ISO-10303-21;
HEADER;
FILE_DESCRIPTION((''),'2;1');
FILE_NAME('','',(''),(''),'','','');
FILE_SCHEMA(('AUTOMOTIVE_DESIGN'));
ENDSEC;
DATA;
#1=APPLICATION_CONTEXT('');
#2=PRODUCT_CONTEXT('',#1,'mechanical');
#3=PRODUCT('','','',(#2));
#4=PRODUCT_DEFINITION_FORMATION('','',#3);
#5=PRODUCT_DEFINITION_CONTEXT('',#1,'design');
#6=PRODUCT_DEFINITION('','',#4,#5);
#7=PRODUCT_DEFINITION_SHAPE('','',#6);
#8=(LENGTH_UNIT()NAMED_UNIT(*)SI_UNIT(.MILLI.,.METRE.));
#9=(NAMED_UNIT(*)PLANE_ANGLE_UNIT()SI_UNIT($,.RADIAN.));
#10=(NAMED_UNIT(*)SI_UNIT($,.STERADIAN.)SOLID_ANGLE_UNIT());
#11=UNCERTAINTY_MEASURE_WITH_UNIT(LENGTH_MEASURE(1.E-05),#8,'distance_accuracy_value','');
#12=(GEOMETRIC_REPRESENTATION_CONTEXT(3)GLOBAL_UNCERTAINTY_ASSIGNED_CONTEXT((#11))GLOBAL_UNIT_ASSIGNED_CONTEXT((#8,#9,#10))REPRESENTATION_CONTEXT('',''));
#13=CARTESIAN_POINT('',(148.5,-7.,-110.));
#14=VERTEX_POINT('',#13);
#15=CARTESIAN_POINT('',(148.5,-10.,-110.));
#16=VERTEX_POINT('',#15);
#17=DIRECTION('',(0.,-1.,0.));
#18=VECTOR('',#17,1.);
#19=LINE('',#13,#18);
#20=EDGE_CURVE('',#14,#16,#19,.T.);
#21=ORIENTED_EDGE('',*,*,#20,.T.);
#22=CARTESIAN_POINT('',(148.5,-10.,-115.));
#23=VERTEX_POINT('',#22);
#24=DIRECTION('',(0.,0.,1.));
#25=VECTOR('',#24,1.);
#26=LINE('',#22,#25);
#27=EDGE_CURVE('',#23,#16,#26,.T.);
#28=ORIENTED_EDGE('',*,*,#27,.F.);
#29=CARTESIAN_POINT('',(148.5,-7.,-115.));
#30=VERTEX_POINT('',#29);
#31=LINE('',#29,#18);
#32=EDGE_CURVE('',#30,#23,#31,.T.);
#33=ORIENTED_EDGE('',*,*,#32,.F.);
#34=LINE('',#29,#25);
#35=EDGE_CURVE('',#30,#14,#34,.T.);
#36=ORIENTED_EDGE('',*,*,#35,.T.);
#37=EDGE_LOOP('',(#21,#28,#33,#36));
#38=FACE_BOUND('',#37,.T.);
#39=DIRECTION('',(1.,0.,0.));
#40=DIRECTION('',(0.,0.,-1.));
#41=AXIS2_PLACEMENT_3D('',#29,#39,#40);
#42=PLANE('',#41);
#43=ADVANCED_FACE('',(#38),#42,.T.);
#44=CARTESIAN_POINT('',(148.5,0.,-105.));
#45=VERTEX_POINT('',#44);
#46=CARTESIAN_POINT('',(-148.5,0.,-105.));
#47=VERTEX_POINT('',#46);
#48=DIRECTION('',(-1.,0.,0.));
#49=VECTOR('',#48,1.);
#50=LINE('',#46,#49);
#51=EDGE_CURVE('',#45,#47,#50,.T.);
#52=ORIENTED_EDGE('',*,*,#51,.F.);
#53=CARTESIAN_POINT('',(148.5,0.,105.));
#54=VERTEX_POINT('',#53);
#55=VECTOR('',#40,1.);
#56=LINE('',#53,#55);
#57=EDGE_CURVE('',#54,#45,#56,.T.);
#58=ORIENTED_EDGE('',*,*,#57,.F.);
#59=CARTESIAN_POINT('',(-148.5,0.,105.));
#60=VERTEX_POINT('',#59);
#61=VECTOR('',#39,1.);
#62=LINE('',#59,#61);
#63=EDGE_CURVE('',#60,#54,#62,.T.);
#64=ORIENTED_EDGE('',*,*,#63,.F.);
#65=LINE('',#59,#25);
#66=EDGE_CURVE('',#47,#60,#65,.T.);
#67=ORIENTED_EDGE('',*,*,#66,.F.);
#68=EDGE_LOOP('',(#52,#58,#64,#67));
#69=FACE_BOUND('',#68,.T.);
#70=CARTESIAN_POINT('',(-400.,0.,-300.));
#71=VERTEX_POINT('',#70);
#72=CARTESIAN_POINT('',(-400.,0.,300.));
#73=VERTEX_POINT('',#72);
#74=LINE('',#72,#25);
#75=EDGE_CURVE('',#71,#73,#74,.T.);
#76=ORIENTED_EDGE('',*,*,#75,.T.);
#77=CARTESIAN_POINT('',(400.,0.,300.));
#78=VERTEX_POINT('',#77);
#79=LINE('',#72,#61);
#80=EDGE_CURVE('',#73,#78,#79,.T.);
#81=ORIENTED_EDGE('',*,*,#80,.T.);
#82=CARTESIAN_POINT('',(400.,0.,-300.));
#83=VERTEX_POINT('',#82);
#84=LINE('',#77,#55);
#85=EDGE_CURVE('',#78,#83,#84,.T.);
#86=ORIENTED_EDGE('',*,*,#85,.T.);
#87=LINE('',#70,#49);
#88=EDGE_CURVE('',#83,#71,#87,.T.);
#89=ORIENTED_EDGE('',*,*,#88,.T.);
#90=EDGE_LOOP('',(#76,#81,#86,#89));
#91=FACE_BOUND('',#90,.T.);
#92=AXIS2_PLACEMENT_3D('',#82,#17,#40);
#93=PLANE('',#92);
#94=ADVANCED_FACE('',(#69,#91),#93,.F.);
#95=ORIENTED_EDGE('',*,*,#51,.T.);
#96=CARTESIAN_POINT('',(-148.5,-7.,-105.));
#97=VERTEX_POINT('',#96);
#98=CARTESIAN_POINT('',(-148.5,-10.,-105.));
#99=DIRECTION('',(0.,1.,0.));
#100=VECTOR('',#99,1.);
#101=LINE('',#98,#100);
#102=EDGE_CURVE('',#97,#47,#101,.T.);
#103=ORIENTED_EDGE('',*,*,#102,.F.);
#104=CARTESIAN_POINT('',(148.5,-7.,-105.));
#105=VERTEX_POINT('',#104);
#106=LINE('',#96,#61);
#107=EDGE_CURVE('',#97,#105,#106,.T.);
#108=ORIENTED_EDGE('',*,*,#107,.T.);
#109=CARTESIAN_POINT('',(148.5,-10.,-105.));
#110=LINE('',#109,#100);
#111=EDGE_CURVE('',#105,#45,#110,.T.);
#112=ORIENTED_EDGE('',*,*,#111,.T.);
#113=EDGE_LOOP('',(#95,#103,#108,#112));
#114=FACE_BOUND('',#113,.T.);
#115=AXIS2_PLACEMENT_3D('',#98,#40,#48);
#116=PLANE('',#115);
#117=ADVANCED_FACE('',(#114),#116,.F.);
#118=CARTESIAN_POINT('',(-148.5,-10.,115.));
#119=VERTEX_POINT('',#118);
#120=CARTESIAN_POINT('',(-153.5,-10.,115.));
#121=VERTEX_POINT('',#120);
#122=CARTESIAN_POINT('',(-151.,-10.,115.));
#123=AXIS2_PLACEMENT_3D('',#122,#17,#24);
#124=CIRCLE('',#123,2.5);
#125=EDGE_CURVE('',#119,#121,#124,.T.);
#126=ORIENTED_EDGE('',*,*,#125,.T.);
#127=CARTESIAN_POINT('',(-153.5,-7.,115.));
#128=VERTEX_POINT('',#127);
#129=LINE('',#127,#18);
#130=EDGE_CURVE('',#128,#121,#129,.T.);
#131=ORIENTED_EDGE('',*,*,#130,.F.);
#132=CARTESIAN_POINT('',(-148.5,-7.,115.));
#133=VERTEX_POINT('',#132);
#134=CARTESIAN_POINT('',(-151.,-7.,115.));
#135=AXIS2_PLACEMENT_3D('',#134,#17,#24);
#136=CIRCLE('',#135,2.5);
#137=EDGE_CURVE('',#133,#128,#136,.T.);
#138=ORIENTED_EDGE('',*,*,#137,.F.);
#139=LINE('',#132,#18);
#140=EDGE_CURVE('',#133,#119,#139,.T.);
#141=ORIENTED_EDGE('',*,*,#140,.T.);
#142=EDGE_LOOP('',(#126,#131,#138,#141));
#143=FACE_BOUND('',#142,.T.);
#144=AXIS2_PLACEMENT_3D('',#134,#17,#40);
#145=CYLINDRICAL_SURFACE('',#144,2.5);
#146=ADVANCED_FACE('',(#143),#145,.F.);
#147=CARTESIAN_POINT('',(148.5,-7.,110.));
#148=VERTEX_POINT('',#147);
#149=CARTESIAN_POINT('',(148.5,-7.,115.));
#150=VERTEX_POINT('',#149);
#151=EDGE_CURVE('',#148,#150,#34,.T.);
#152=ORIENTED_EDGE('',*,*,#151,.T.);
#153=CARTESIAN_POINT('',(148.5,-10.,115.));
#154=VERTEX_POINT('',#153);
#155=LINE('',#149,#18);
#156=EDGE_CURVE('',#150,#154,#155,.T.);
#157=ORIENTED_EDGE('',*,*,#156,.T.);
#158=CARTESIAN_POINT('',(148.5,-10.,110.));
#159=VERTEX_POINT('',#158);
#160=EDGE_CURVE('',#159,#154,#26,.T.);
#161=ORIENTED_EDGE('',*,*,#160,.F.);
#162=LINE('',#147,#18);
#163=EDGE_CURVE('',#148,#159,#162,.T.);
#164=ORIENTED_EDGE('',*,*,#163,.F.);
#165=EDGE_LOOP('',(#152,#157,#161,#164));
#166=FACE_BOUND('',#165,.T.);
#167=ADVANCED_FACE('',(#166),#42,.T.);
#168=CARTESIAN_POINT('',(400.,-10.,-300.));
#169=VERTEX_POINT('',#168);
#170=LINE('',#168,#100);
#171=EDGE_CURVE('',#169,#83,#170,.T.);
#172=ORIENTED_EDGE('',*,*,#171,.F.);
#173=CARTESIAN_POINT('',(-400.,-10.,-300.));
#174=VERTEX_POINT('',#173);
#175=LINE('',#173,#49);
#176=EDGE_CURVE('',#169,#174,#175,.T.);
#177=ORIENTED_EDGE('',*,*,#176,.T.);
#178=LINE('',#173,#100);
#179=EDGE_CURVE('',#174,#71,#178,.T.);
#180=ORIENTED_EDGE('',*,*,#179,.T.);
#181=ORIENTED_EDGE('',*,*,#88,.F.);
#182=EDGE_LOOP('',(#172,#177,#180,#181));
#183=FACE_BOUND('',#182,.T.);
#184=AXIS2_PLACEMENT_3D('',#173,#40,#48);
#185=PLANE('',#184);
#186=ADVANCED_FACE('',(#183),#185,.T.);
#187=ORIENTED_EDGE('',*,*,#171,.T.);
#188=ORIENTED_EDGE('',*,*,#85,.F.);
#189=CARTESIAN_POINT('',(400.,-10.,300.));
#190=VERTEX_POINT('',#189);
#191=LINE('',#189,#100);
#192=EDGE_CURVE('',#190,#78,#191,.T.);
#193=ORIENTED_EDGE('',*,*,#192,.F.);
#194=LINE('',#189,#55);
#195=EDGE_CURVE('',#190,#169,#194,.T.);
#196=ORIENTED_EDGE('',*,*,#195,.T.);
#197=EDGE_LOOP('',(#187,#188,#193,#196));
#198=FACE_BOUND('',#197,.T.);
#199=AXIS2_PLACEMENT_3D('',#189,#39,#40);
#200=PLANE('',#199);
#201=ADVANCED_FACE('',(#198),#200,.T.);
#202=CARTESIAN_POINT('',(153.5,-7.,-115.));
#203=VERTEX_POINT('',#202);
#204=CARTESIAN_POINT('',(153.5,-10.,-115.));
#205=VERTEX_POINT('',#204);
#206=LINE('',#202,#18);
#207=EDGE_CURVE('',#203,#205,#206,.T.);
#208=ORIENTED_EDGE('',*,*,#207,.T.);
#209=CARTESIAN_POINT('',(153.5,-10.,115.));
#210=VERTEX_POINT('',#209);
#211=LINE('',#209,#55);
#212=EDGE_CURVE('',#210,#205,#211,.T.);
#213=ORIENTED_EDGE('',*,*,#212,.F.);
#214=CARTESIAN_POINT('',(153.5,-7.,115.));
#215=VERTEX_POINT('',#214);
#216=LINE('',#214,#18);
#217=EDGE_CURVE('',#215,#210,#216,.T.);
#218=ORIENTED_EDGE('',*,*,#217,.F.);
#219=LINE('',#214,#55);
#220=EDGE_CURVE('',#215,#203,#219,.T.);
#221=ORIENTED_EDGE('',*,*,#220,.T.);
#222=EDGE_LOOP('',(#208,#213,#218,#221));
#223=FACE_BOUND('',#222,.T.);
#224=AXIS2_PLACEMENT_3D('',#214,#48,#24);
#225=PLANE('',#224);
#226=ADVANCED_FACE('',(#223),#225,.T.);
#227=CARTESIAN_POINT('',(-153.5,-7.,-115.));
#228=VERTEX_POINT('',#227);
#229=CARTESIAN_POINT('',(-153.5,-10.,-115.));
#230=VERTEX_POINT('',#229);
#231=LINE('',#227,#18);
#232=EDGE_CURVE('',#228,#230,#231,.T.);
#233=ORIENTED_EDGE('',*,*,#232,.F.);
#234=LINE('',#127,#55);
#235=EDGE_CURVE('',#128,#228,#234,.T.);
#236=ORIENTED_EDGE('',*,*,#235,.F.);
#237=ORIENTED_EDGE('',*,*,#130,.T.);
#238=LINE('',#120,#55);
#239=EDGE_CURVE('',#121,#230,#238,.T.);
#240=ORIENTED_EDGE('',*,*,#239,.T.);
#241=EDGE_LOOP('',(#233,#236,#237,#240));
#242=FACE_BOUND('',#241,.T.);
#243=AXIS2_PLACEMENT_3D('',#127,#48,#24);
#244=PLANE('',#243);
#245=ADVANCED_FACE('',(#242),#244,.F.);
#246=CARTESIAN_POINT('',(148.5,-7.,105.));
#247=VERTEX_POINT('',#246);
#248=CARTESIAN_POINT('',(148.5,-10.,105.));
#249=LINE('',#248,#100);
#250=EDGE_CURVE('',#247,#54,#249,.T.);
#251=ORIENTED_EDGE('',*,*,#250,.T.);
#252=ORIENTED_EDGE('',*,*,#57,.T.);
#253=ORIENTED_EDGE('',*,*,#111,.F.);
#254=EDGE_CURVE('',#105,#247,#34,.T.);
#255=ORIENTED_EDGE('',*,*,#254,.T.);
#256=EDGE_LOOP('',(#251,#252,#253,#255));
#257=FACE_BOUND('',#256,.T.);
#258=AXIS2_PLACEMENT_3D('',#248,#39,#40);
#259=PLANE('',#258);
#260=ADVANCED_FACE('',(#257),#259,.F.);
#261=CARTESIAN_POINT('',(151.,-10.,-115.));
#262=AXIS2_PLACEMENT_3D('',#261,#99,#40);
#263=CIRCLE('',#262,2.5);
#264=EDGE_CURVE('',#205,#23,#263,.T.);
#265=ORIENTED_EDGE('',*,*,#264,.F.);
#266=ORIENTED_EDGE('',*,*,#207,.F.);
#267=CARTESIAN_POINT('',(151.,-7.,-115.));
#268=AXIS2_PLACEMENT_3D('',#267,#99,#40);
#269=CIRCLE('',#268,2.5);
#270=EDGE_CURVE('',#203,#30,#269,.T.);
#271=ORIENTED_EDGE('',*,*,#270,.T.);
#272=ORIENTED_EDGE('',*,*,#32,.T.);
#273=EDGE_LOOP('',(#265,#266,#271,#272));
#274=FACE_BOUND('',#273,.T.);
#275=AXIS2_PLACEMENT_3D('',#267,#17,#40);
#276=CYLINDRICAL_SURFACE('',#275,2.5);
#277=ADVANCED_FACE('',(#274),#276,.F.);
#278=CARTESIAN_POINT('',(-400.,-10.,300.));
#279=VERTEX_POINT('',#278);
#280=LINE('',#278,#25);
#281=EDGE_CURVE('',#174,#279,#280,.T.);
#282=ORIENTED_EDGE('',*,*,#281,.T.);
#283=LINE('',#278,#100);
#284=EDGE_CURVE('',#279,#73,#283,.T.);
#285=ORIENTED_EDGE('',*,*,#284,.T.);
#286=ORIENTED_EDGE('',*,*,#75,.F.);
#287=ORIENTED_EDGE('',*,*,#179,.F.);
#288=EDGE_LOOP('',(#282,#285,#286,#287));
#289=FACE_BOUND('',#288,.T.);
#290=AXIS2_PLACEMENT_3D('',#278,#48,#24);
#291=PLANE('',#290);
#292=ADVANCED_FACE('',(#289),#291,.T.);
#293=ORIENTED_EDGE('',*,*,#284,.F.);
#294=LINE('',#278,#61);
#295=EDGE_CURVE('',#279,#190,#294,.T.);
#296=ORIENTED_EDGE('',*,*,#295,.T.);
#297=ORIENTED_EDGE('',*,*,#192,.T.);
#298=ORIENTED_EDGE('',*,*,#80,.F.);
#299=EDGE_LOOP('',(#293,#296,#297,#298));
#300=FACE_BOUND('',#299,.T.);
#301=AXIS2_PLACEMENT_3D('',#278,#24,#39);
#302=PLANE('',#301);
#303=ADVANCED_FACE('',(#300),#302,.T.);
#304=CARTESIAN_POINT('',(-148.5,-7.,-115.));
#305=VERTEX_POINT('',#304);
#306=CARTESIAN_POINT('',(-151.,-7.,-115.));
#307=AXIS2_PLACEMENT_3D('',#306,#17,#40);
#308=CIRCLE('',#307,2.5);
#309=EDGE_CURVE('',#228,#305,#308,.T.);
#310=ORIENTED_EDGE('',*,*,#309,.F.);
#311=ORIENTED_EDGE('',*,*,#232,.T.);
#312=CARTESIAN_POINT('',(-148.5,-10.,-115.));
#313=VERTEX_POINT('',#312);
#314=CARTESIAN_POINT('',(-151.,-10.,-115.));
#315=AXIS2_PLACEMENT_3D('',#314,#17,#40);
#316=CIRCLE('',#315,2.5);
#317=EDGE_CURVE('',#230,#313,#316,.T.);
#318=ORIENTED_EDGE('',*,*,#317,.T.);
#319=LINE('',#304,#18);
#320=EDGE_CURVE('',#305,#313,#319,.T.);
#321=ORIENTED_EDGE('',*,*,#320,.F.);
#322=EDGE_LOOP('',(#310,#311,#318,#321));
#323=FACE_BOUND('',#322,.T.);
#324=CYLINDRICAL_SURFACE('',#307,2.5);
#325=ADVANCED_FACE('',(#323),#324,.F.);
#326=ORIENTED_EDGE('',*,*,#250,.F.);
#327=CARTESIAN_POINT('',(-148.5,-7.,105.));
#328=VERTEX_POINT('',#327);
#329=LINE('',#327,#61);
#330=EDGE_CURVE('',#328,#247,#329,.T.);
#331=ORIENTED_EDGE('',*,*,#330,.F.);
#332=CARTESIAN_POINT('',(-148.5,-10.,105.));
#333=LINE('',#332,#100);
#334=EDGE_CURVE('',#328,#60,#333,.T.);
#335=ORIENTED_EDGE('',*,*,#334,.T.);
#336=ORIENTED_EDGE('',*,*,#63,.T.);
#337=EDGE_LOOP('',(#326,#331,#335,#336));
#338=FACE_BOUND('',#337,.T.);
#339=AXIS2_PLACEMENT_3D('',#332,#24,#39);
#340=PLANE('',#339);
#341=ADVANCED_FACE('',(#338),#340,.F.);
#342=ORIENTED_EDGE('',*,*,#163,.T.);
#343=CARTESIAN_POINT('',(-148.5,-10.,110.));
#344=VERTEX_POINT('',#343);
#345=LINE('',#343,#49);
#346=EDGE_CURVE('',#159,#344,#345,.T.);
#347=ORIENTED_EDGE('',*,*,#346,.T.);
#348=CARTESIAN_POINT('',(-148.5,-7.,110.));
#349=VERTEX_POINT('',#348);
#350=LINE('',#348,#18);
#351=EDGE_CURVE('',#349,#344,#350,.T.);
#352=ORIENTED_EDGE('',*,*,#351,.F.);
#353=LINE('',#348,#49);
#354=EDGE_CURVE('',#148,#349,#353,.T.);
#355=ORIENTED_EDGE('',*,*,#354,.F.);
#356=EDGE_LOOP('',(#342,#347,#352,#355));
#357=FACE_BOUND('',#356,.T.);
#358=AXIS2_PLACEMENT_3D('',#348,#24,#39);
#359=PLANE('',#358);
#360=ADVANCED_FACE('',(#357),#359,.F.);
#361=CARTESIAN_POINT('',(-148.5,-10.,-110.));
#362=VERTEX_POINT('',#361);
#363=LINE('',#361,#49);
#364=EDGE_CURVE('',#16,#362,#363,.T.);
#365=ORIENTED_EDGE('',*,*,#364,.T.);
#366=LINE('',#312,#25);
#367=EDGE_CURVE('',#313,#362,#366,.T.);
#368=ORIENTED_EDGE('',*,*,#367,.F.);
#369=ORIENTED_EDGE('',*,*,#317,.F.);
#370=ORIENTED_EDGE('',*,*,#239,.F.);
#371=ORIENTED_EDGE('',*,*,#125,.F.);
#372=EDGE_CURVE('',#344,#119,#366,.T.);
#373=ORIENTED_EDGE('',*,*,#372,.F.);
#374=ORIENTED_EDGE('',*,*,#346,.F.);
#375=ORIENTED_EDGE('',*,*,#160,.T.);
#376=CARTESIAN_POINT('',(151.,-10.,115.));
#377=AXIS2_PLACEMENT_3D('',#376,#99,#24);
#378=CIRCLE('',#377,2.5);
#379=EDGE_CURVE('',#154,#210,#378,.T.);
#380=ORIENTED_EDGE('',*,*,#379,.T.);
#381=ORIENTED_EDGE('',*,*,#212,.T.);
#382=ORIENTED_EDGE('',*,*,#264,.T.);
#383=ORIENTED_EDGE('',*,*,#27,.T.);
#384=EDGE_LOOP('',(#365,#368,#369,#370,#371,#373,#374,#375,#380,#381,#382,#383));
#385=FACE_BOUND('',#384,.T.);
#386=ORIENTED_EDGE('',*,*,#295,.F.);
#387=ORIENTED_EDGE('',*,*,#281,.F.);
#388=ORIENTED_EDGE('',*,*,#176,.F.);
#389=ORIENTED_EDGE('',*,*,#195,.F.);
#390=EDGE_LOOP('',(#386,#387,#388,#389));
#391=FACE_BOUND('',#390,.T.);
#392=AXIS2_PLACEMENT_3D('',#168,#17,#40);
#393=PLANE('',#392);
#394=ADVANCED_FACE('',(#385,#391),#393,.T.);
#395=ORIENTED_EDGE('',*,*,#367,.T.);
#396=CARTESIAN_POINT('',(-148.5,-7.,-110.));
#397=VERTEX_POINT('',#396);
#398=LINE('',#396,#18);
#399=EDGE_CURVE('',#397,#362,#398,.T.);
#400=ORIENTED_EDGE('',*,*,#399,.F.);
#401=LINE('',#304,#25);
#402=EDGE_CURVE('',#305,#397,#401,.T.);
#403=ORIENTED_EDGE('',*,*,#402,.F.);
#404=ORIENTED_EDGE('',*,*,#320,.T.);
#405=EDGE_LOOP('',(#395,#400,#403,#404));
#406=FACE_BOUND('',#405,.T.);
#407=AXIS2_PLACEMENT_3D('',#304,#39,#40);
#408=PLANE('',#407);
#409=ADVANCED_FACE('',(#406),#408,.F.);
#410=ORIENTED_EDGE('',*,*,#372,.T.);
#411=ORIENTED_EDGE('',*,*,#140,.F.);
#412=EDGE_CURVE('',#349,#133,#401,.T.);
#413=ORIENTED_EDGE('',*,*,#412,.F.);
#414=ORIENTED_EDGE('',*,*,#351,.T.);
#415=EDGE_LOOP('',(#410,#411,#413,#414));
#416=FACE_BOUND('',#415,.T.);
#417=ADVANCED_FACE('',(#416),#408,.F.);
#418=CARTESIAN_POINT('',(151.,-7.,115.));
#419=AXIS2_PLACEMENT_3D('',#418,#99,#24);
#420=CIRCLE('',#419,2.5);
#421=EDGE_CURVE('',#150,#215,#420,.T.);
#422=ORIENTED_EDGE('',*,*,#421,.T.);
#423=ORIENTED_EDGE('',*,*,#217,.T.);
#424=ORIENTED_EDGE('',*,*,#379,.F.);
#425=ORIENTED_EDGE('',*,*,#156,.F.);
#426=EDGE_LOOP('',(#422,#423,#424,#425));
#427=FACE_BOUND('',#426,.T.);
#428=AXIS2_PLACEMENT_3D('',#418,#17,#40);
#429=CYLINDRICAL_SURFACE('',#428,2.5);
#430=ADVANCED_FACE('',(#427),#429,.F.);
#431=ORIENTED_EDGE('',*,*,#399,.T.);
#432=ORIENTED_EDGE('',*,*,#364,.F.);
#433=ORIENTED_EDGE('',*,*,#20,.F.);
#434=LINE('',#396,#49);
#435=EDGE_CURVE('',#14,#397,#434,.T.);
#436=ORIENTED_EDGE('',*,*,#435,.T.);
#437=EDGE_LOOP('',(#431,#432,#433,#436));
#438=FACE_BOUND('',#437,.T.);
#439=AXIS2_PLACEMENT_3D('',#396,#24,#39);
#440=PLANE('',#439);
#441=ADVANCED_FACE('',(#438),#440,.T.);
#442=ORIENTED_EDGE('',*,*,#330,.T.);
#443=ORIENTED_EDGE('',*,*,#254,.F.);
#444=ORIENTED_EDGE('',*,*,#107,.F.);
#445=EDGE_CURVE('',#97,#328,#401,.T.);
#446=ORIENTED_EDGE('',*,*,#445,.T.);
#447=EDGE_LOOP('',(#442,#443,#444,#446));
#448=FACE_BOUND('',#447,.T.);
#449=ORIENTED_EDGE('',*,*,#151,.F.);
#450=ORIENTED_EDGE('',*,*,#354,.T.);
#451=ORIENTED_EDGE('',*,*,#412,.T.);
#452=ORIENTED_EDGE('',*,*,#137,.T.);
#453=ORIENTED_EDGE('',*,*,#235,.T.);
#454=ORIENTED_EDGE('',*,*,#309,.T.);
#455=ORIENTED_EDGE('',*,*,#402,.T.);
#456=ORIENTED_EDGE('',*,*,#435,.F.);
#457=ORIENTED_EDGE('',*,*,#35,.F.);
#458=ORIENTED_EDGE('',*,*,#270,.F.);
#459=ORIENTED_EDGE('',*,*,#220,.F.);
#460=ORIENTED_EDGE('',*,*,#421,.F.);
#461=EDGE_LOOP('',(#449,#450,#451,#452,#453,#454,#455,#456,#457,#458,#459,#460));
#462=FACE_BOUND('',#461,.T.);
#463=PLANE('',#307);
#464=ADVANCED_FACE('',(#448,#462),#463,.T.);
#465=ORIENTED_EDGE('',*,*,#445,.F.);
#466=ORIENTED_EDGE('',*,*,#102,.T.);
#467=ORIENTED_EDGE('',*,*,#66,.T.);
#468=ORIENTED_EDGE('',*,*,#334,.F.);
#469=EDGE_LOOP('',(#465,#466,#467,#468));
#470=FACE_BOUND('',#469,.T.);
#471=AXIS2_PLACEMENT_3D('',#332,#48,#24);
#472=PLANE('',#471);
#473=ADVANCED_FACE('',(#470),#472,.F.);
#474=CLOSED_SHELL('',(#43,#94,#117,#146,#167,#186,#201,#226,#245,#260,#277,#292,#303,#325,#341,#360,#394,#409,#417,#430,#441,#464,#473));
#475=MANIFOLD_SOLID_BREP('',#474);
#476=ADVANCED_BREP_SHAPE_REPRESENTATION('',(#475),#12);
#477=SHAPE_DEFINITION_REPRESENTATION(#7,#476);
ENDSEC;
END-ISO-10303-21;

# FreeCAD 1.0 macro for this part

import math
import FreeCAD as App
import Part
import Sketcher

V = App.Vector
Q = App.Units.Quantity


def add_polygon(sketch, points):
    """Adds a closed chain of lines whose ends are joined by coincident constraints."""
    first, n = sketch.GeometryCount, len(points)
    for a, b in zip(points, points[1:] + points[:1]):
        sketch.addGeometry(Part.LineSegment(App.Vector(*a, 0), App.Vector(*b, 0)), False)
    for i in range(n):
        sketch.addConstraint(Sketcher.Constraint("Coincident", first + i, 2, first + (i + 1) % n, 1))

doc = App.newDocument("Part")
body = doc.addObject("PartDesign::Body", "Body")

# Sketch on XZ plane
sketch1 = body.newObject("Sketcher::SketchObject", "Sketch")
sketch1.AttachmentSupport = (doc.getObject("XZ_Plane"), [""])
sketch1.MapMode = "FlatFace"
add_polygon(sketch1, [(-400, -300), (-400, 300), (400, 300), (400, -300)])  # lines 0-3
add_polygon(sketch1, [(148, 105), (-148, 105), (-148, -105), (148, -105)])  # lines 4-7
sketch1.addConstraint(Sketcher.Constraint("Vertical", 0))
sketch1.addConstraint(Sketcher.Constraint("Horizontal", 1))
sketch1.addConstraint(Sketcher.Constraint("Vertical", 2))
sketch1.addConstraint(Sketcher.Constraint("Horizontal", 3))
sketch1.addConstraint(Sketcher.Constraint("Horizontal", 4))
sketch1.addConstraint(Sketcher.Constraint("Vertical", 5))
sketch1.addConstraint(Sketcher.Constraint("Horizontal", 6))
sketch1.addConstraint(Sketcher.Constraint("Vertical", 7))
sketch1.addConstraint(Sketcher.Constraint("Symmetric", 0, 2, 2, 2, -1, 1))
sketch1.addConstraint(Sketcher.Constraint("Symmetric", 4, 2, 6, 2, -1, 1))
sketch1.addConstraint(Sketcher.Constraint("DistanceX", 1, 1, 1, 2, Q("800 mm")))
sketch1.addConstraint(Sketcher.Constraint("DistanceX", 4, 2, 4, 1, Q("297 mm")))
sketch1.addConstraint(Sketcher.Constraint("DistanceY", 0, 1, 0, 2, Q("600 mm")))
sketch1.addConstraint(Sketcher.Constraint("DistanceY", 5, 2, 5, 1, Q("210 mm")))
pad1 = body.newObject("PartDesign::Pad", "Pad")
pad1.Profile = sketch1
pad1.Length = 10

# Sketch on XZ plane
sketch2 = body.newObject("Sketcher::SketchObject", "Sketch001")
sketch2.AttachmentSupport = (doc.getObject("XZ_Plane"), [""])
sketch2.MapMode = "FlatFace"
sketch2.AttachmentOffset = App.Placement(V(0, 0, 10), App.Rotation())
sketch2.addGeometry(Part.LineSegment(V(-148.5, -115, 0), V(-148.5, 115, 0)), False)
sketch2.addGeometry(Part.ArcOfCircle(Part.Circle(V(-151, 115, 0), V(0, 0, 1), 2.5), math.radians(0), math.radians(180)), False)
sketch2.addGeometry(Part.LineSegment(V(-153.5, 115, 0), V(-153.5, -115, 0)), False)
sketch2.addGeometry(Part.ArcOfCircle(Part.Circle(V(-151, -115, 0), V(0, 0, 1), 2.5), math.radians(180), math.radians(360)), False)
sketch2.addConstraint(Sketcher.Constraint("Tangent", 0, 2, 1, 1))
sketch2.addConstraint(Sketcher.Constraint("Tangent", 1, 2, 2, 1))
sketch2.addConstraint(Sketcher.Constraint("Tangent", 2, 2, 3, 1))
sketch2.addConstraint(Sketcher.Constraint("Tangent", 3, 2, 0, 1))
sketch2.addConstraint(Sketcher.Constraint("Vertical", 0))
sketch2.addConstraint(Sketcher.Constraint("Vertical", 2))
sketch2.addConstraint(Sketcher.Constraint("Radius", 1, Q("2.5 mm")))
sketch2.addConstraint(Sketcher.Constraint("DistanceY", 0, 1, 0, 2, Q("230 mm")))
sketch2.addConstraint(Sketcher.Constraint("DistanceX", 1, 3, -1, 1, Q("151 mm")))
sketch2.addConstraint(Sketcher.Constraint("DistanceY", -1, 1, 1, 3, Q("115 mm")))
pocket1 = body.newObject("PartDesign::Pocket", "Pocket")
pocket1.Profile = sketch2
pocket1.Length = 3
doc.recompute()

mirrored = body.newObject("PartDesign::Mirrored", "Mirrored")
mirrored.Originals = [pocket1]
mirrored.MirrorPlane = (doc.getObject("YZ_Plane"), [""])
body.Tip = mirrored

# Sketch on XZ plane
sketch3 = body.newObject("Sketcher::SketchObject", "Sketch002")
sketch3.AttachmentSupport = (doc.getObject("XZ_Plane"), [""])
sketch3.MapMode = "FlatFace"
sketch3.AttachmentOffset = App.Placement(V(0, 0, 10), App.Rotation())
add_polygon(sketch3, [(-148, 110), (-148, 105), (148, 105), (148, 110)])  # lines 0-3
sketch3.addConstraint(Sketcher.Constraint("Vertical", 0))
sketch3.addConstraint(Sketcher.Constraint("Horizontal", 1))
sketch3.addConstraint(Sketcher.Constraint("Vertical", 2))
sketch3.addConstraint(Sketcher.Constraint("Horizontal", 3))
sketch3.addConstraint(Sketcher.Constraint("DistanceX", 1, 1, 1, 2, Q("297 mm")))
sketch3.addConstraint(Sketcher.Constraint("DistanceY", 0, 2, 0, 1, Q("5 mm")))
sketch3.addConstraint(Sketcher.Constraint("DistanceY", -1, 1, 0, 2, Q("105 mm")))
sketch3.addConstraint(Sketcher.Constraint("DistanceX", 0, 2, -1, 1, Q("148.5 mm")))
pocket2 = body.newObject("PartDesign::Pocket", "Pocket001")
pocket2.Profile = sketch3
pocket2.Length = 3
doc.recompute()

mirrored2 = body.newObject("PartDesign::Mirrored", "Mirrored001")
mirrored2.Originals = [pocket2]
mirrored2.MirrorPlane = (doc.getObject("XY_Plane"), [""])
body.Tip = mirrored2

doc.recompute()
